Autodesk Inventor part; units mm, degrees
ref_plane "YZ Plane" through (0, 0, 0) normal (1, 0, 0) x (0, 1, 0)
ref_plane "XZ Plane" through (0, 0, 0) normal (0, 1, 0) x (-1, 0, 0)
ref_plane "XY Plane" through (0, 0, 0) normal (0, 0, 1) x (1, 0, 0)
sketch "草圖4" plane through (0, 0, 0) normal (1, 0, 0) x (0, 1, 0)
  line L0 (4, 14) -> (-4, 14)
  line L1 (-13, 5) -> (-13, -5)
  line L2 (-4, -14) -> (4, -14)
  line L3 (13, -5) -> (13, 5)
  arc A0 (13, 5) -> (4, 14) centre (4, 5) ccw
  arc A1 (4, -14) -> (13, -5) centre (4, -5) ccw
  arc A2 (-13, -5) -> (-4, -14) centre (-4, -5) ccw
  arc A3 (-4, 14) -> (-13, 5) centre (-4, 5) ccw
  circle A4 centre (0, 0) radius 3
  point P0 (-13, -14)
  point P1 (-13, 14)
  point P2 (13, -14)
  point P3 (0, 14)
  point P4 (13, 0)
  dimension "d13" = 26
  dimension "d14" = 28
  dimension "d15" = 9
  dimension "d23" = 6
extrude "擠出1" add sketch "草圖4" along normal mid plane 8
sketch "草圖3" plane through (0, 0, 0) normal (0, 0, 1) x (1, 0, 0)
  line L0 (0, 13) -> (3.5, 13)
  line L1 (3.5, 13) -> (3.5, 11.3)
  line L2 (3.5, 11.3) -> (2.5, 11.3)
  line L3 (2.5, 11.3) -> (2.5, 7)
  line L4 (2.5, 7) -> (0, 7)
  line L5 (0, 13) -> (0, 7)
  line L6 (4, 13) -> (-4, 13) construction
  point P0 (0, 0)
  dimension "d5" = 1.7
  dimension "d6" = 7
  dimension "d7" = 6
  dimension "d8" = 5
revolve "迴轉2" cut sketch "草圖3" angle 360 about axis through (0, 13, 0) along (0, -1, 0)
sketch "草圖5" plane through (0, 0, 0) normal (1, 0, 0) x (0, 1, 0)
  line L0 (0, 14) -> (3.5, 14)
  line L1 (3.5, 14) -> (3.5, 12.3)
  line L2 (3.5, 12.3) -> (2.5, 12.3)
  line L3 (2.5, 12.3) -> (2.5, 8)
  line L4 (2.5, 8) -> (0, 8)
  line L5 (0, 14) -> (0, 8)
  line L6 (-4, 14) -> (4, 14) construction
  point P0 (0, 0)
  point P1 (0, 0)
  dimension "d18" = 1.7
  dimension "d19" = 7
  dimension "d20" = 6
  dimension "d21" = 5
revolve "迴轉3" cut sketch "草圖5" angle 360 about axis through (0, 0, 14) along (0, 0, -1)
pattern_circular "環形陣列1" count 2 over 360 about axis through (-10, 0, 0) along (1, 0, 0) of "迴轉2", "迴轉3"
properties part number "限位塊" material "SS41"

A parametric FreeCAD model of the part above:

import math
import FreeCAD as App
import Part
import Sketcher
from FreeCAD import Vector
Q = App.Units.Quantity


def add_polygon(sketch, points):
    """Adds a closed chain of lines whose ends are joined by coincident constraints."""
    first, n = sketch.GeometryCount, len(points)
    for a, b in zip(points, points[1:] + points[:1]):
        sketch.addGeometry(Part.LineSegment(App.Vector(*a, 0), App.Vector(*b, 0)), False)
    for i in range(n):
        sketch.addConstraint(Sketcher.Constraint("Coincident", first + i, 2, first + (i + 1) % n, 1))

doc = App.newDocument("Part")
body = doc.addObject("PartDesign::Body", "Body")

sketch1 = doc.addObject("Sketcher::SketchObject", "Sketch")
body.addObject(sketch1)
sketch1.AttachmentSupport = (doc.YZ_Plane, [""])
sketch1.MapMode = "FlatFace"
sketch1.addGeometry([
    Part.ArcOfCircle(Part.Circle(Vector(4, 5, 0), Vector(0, 0, 1), 9), math.radians(0), math.radians(90)),
    Part.LineSegment(Vector(4, 14, 0), Vector(-4, 14, 0)),
    Part.ArcOfCircle(Part.Circle(Vector(-4, 5, 0), Vector(0, 0, 1), 9), math.radians(90), math.radians(180)),
    Part.LineSegment(Vector(-13, 5, 0), Vector(-13, -5, 0)),
    Part.ArcOfCircle(Part.Circle(Vector(-4, -5, 0), Vector(0, 0, 1), 9), math.radians(180), math.radians(270)),
    Part.LineSegment(Vector(-4, -14, 0), Vector(4, -14, 0)),
    Part.ArcOfCircle(Part.Circle(Vector(4, -5, 0), Vector(0, 0, 1), 9), math.radians(-90), math.radians(0)),
    Part.LineSegment(Vector(13, -5, 0), Vector(13, 5, 0)),
    Part.Circle(Vector(0, 0, 0), Vector(0, 0, 1), 3),
], False)
sketch1.addConstraint([
    Sketcher.Constraint("Tangent", 0, 2, 1, 1),
    Sketcher.Constraint("Tangent", 1, 2, 2, 1),
    Sketcher.Constraint("Tangent", 2, 2, 3, 1),
    Sketcher.Constraint("Tangent", 3, 2, 4, 1),
    Sketcher.Constraint("Tangent", 4, 2, 5, 1),
    Sketcher.Constraint("Tangent", 5, 2, 6, 1),
    Sketcher.Constraint("Tangent", 6, 2, 7, 1),
    Sketcher.Constraint("Tangent", 7, 2, 0, 1),
    Sketcher.Constraint("Horizontal", 1),
    Sketcher.Constraint("Vertical", 3),
    Sketcher.Constraint("Horizontal", 5),
    Sketcher.Constraint("Vertical", 7),
    Sketcher.Constraint("Coincident", 8, 3, -1, 1),
    Sketcher.Constraint("Equal", 0, 2),
    Sketcher.Constraint("Equal", 2, 4),
    Sketcher.Constraint("Equal", 4, 6),
    Sketcher.Constraint("Symmetric", 0, 3, 4, 3, -1, 1),
    Sketcher.Constraint("Diameter", 8, Q("6 mm")),
    Sketcher.Constraint("Radius", 0, Q("9 mm")),
    Sketcher.Constraint("DistanceX", 1, 2, 1, 1, Q("8 mm")),
    Sketcher.Constraint("DistanceY", 3, 2, 3, 1, Q("10 mm")),
])
pad1 = doc.addObject("PartDesign::Pad", "Pad")
body.addObject(pad1)
pad1.Profile = sketch1
pad1.Length = 8
pad1.Midplane = True

sketch2 = doc.addObject("Sketcher::SketchObject", "Sketch001")
body.addObject(sketch2)
sketch2.AttachmentSupport = (doc.XY_Plane, [""])
sketch2.MapMode = "FlatFace"
add_polygon(sketch2, [(3.5, 13), (0, 13), (0, 7), (2.5, 7), (2.5, 11.3), (3.5, 11.3)])
sketch2.addConstraint([
    Sketcher.Constraint("Horizontal", 0),
    Sketcher.Constraint("Vertical", 1),
    Sketcher.Constraint("Horizontal", 2),
    Sketcher.Constraint("Vertical", 3),
    Sketcher.Constraint("Horizontal", 4),
    Sketcher.Constraint("Vertical", 5),
    Sketcher.Constraint("PointOnObject", 0, 2, -2),
    Sketcher.Constraint("DistanceY", 1, 2, 1, 1, Q("6 mm")),
    Sketcher.Constraint("DistanceY", 5, 1, 5, 2, Q("1.7 mm")),
    Sketcher.Constraint("DistanceY", -1, 1, 1, 2, Q("7 mm")),
    Sketcher.Constraint("DistanceX", 4, 1, 4, 2, Q("1 mm")),
    Sketcher.Constraint("DistanceX", 0, 2, 0, 1, Q("3.5 mm")),
])
groove = doc.addObject("PartDesign::Groove", "Groove")
body.addObject(groove)
groove.Profile = sketch2
groove.ReferenceAxis = (sketch2, ["V_Axis"])
groove.Angle = 360

sketch3 = doc.addObject("Sketcher::SketchObject", "Sketch002")
body.addObject(sketch3)
sketch3.AttachmentSupport = (doc.YZ_Plane, [""])
sketch3.MapMode = "FlatFace"
add_polygon(sketch3, [(3.5, 14), (0, 14), (0, 8), (2.5, 8), (2.5, 12.3), (3.5, 12.3)])
sketch3.addConstraint([
    Sketcher.Constraint("Horizontal", 0),
    Sketcher.Constraint("Vertical", 1),
    Sketcher.Constraint("Horizontal", 2),
    Sketcher.Constraint("Vertical", 3),
    Sketcher.Constraint("Horizontal", 4),
    Sketcher.Constraint("Vertical", 5),
    Sketcher.Constraint("PointOnObject", 0, 2, -2),
    Sketcher.Constraint("DistanceY", 1, 2, 1, 1, Q("6 mm")),
    Sketcher.Constraint("DistanceY", 5, 1, 5, 2, Q("1.7 mm")),
    Sketcher.Constraint("DistanceX", 4, 1, 4, 2, Q("1 mm")),
    Sketcher.Constraint("DistanceX", 0, 2, 0, 1, Q("3.5 mm")),
    Sketcher.Constraint("DistanceY", -1, 1, 0, 2, Q("14 mm")),
])
groove2 = doc.addObject("PartDesign::Groove", "Groove001")
body.addObject(groove2)
groove2.Profile = sketch3
groove2.ReferenceAxis = (sketch3, ["V_Axis"])
groove2.Angle = 360
doc.recompute()

polarpattern = doc.addObject("PartDesign::PolarPattern", "PolarPattern")
body.addObject(polarpattern)
polarpattern.Originals = [groove, groove2]
polarpattern.Axis = (doc.X_Axis, [""])
polarpattern.Angle = 360
polarpattern.Occurrences = 2
body.Tip = polarpattern

doc.recompute()
